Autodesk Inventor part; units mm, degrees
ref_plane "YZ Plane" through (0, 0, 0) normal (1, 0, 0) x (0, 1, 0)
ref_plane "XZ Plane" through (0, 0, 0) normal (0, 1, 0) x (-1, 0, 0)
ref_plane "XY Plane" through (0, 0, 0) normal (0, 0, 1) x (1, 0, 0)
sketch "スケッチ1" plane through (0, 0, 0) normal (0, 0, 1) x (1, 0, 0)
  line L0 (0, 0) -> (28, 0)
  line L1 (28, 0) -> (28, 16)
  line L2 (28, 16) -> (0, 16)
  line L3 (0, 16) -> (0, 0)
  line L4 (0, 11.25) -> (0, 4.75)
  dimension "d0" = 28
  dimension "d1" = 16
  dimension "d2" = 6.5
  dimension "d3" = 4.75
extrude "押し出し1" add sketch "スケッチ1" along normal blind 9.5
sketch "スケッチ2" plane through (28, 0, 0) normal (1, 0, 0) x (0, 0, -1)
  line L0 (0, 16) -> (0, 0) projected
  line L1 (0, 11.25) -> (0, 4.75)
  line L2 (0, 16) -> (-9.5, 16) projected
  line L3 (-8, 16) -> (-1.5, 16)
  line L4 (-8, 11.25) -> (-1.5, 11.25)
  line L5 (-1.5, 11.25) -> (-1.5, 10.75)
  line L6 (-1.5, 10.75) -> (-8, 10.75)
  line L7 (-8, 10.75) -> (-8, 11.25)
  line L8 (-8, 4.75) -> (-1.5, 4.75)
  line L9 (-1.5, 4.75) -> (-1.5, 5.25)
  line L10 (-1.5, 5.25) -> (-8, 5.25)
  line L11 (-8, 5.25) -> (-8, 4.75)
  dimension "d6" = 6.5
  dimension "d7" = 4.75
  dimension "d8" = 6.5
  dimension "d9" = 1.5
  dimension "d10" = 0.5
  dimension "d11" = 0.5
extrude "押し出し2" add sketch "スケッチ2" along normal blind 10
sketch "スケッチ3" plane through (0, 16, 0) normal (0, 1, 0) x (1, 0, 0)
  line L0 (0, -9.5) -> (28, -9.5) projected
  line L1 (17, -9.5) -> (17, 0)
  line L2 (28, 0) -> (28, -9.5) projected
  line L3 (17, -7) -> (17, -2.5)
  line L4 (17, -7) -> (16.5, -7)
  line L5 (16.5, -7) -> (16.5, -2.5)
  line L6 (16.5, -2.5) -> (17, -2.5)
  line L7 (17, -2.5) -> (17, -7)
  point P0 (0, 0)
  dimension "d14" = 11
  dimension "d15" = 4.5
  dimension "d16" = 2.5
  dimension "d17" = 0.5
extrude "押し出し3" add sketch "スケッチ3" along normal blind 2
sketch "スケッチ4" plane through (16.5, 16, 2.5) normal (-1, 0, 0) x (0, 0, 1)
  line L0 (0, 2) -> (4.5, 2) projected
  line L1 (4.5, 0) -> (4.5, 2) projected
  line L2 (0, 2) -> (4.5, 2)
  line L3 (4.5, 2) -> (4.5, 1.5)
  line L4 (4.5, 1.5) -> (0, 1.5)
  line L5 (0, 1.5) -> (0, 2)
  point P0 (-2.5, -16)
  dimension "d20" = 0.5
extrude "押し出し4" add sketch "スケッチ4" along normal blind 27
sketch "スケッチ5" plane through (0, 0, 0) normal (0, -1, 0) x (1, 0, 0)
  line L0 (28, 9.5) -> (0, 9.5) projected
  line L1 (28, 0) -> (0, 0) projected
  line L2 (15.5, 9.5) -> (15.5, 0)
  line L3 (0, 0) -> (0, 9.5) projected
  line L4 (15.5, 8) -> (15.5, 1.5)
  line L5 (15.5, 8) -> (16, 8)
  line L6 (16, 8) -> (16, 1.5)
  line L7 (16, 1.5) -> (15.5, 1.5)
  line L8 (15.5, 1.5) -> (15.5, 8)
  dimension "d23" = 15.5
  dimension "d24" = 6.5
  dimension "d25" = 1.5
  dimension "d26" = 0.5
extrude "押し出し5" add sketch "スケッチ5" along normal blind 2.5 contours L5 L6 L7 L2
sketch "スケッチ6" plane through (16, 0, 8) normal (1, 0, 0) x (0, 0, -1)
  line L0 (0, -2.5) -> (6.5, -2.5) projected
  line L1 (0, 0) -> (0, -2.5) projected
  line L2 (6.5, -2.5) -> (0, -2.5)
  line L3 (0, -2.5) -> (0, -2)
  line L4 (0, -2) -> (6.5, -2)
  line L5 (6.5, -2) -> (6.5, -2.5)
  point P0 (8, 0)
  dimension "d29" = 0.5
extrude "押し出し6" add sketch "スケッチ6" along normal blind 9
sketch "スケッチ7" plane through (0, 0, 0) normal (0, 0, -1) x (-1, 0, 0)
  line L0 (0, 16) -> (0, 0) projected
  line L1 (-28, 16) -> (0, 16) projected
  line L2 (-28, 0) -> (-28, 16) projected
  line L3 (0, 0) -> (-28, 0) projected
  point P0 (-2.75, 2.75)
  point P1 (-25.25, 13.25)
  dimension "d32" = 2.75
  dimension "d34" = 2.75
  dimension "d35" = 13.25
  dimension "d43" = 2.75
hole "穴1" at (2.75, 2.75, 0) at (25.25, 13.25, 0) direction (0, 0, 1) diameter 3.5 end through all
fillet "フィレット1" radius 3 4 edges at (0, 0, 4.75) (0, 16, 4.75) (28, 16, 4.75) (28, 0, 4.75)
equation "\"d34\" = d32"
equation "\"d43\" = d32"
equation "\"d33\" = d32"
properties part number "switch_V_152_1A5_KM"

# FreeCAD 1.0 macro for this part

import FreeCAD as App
import Part
import Sketcher
from FreeCAD import Vector


def edges_at(feature, points):
    """Names of the edges that pass closest to the given points."""
    edges = feature.Shape.Edges
    near = lambda p: min(range(len(edges)), key=lambda i: edges[i].distToShape(Part.Vertex(*p))[0])
    return sorted({f"Edge{near(p) + 1}" for p in points})

doc = App.newDocument("Part")
body = doc.addObject("PartDesign::Body", "Body")

# Sketch on XY plane
sketch1 = body.newObject("Sketcher::SketchObject", "Sketch")
sketch1.AttachmentSupport = (doc.getObject("XY_Plane"), [""])
sketch1.MapMode = "FlatFace"
sketch1.addGeometry([
    Part.LineSegment(Vector(0, 16, 0), Vector(0, 0, 0)),
    Part.LineSegment(Vector(0, 0, 0), Vector(28, 0, 0)),
    Part.LineSegment(Vector(28, 0, 0), Vector(28, 16, 0)),
    Part.LineSegment(Vector(28, 16, 0), Vector(0, 16, 0)),
], False)
sketch1.addConstraint([
    Sketcher.Constraint("Coincident", 0, 2, 1, 1),
    Sketcher.Constraint("Coincident", 1, 2, 2, 1),
    Sketcher.Constraint("Coincident", 2, 2, 3, 1),
    Sketcher.Constraint("Coincident", 3, 2, 0, 1),
    Sketcher.Constraint("Vertical", 0),
    Sketcher.Constraint("Horizontal", 1),
    Sketcher.Constraint("Vertical", 2),
    Sketcher.Constraint("Horizontal", 3),
    Sketcher.Constraint("Coincident", 0, 2, -1, 1),
    Sketcher.Constraint("DistanceX", 1, 1, 1, 2, 28.0),
    Sketcher.Constraint("DistanceY", 0, 2, 0, 1, 16.0),
])
pad1 = body.newObject("PartDesign::Pad", "Pad")
pad1.Profile = sketch1
pad1.Length = 9.5

# Sketch on YZ plane
sketch2 = body.newObject("Sketcher::SketchObject", "Sketch001")
sketch2.AttachmentSupport = (doc.getObject("YZ_Plane"), [""])
sketch2.MapMode = "FlatFace"
sketch2.AttachmentOffset = App.Placement(Vector(0, 0, 28), App.Rotation())
sketch2.addGeometry([
    Part.LineSegment(Vector(11.25, 1.5, 0), Vector(11.25, 8, 0)),  # 0
    Part.LineSegment(Vector(11.25, 8, 0), Vector(10.75, 8, 0)),  # 1
    Part.LineSegment(Vector(10.75, 8, 0), Vector(10.75, 1.5, 0)),  # 2
    Part.LineSegment(Vector(10.75, 1.5, 0), Vector(11.25, 1.5, 0)),  # 3
    Part.LineSegment(Vector(5.25, 8, 0), Vector(4.75, 8, 0)),  # 4
    Part.LineSegment(Vector(4.75, 8, 0), Vector(4.75, 1.5, 0)),  # 5
    Part.LineSegment(Vector(4.75, 1.5, 0), Vector(5.25, 1.5, 0)),  # 6
    Part.LineSegment(Vector(5.25, 1.5, 0), Vector(5.25, 8, 0)),  # 7
], False)
sketch2.addConstraint([
    Sketcher.Constraint("Coincident", 0, 2, 1, 1),
    Sketcher.Constraint("Coincident", 1, 2, 2, 1),
    Sketcher.Constraint("Coincident", 2, 2, 3, 1),
    Sketcher.Constraint("Coincident", 3, 2, 0, 1),
    Sketcher.Constraint("Coincident", 4, 2, 5, 1),
    Sketcher.Constraint("Coincident", 5, 2, 6, 1),
    Sketcher.Constraint("Coincident", 6, 2, 7, 1),
    Sketcher.Constraint("Coincident", 7, 2, 4, 1),
    Sketcher.Constraint("Vertical", 0),
    Sketcher.Constraint("Horizontal", 1),
    Sketcher.Constraint("Vertical", 2),
    Sketcher.Constraint("Horizontal", 3),
    Sketcher.Constraint("Horizontal", 4),
    Sketcher.Constraint("Vertical", 5),
    Sketcher.Constraint("Horizontal", 6),
    Sketcher.Constraint("Vertical", 7),
    Sketcher.Constraint("Horizontal", 1, 2, 4, 2),
    Sketcher.Constraint("Horizontal", 3, 2, 5, 2),
    Sketcher.Constraint("Equal", 3, 4),
    Sketcher.Constraint("DistanceX", 1, 2, 1, 1, 0.5),
    Sketcher.Constraint("DistanceY", 0, 1, 0, 2, 6.5),
    Sketcher.Constraint("DistanceY", -1, 1, 2, 2, 1.5),
    Sketcher.Constraint("DistanceX", 4, 2, 0, 2, 6.5),
    Sketcher.Constraint("DistanceX", -1, 1, 4, 2, 4.75),
])
pad2 = body.newObject("PartDesign::Pad", "Pad001")
pad2.Profile = sketch2
pad2.Length = 10

# Sketch on XZ plane
sketch3 = body.newObject("Sketcher::SketchObject", "Sketch002")
sketch3.AttachmentSupport = (doc.getObject("XZ_Plane"), [""])
sketch3.MapMode = "FlatFace"
sketch3.AttachmentOffset = App.Placement(Vector(0, 0, -16), App.Rotation())
sketch3.addGeometry([
    Part.LineSegment(Vector(16.5, 7, 0), Vector(17, 7, 0)),
    Part.LineSegment(Vector(17, 7, 0), Vector(17, 2.5, 0)),
    Part.LineSegment(Vector(17, 2.5, 0), Vector(16.5, 2.5, 0)),
    Part.LineSegment(Vector(16.5, 2.5, 0), Vector(16.5, 7, 0)),
], False)
sketch3.addConstraint([
    Sketcher.Constraint("Coincident", 0, 2, 1, 1),
    Sketcher.Constraint("Coincident", 1, 2, 2, 1),
    Sketcher.Constraint("Coincident", 2, 2, 3, 1),
    Sketcher.Constraint("Coincident", 3, 2, 0, 1),
    Sketcher.Constraint("Horizontal", 0),
    Sketcher.Constraint("Vertical", 1),
    Sketcher.Constraint("Horizontal", 2),
    Sketcher.Constraint("Vertical", 3),
    Sketcher.Constraint("DistanceX", 0, 1, 0, 2, 0.5),
    Sketcher.Constraint("DistanceY", 1, 2, 1, 1, 4.5),
    Sketcher.Constraint("DistanceY", -1, 1, 1, 2, 2.5),
    Sketcher.Constraint("DistanceX", -1, 1, 0, 2, 17.0),
])
pad3 = body.newObject("PartDesign::Pad", "Pad002")
pad3.Profile = sketch3
pad3.Length = 2
pad3.Reversed = True

# Sketch on YZ plane
sketch4 = body.newObject("Sketcher::SketchObject", "Sketch003")
sketch4.AttachmentSupport = (doc.getObject("YZ_Plane"), [""])
sketch4.MapMode = "FlatFace"
sketch4.AttachmentOffset = App.Placement(Vector(0, 0, 16.5), App.Rotation())
sketch4.addGeometry([
    Part.LineSegment(Vector(18, 7, 0), Vector(18, 2.5, 0)),
    Part.LineSegment(Vector(18, 2.5, 0), Vector(17.5, 2.5, 0)),
    Part.LineSegment(Vector(17.5, 2.5, 0), Vector(17.5, 7, 0)),
    Part.LineSegment(Vector(17.5, 7, 0), Vector(18, 7, 0)),
], False)
sketch4.addConstraint([
    Sketcher.Constraint("Coincident", 0, 2, 1, 1),
    Sketcher.Constraint("Coincident", 1, 2, 2, 1),
    Sketcher.Constraint("Coincident", 2, 2, 3, 1),
    Sketcher.Constraint("Coincident", 3, 2, 0, 1),
    Sketcher.Constraint("Vertical", 0),
    Sketcher.Constraint("Horizontal", 1),
    Sketcher.Constraint("Vertical", 2),
    Sketcher.Constraint("Horizontal", 3),
    Sketcher.Constraint("DistanceX", 1, 2, 1, 1, 0.5),
    Sketcher.Constraint("DistanceY", 0, 2, 0, 1, 4.5),
    Sketcher.Constraint("DistanceX", -1, 1, 0, 2, 18.0),
    Sketcher.Constraint("DistanceY", -1, 1, 2, 2, 7.0),
])
pad4 = body.newObject("PartDesign::Pad", "Pad003")
pad4.Profile = sketch4
pad4.Length = 27
pad4.Reversed = True

# Sketch on XZ plane
sketch5 = body.newObject("Sketcher::SketchObject", "Sketch004")
sketch5.AttachmentSupport = (doc.getObject("XZ_Plane"), [""])
sketch5.MapMode = "FlatFace"
sketch5.addGeometry([
    Part.LineSegment(Vector(16, 8, 0), Vector(15.5, 8, 0)),
    Part.LineSegment(Vector(15.5, 8, 0), Vector(15.5, 1.5, 0)),
    Part.LineSegment(Vector(15.5, 1.5, 0), Vector(16, 1.5, 0)),
    Part.LineSegment(Vector(16, 1.5, 0), Vector(16, 8, 0)),
], False)
sketch5.addConstraint([
    Sketcher.Constraint("Coincident", 0, 2, 1, 1),
    Sketcher.Constraint("Coincident", 1, 2, 2, 1),
    Sketcher.Constraint("Coincident", 2, 2, 3, 1),
    Sketcher.Constraint("Coincident", 3, 2, 0, 1),
    Sketcher.Constraint("Horizontal", 0),
    Sketcher.Constraint("Vertical", 1),
    Sketcher.Constraint("Horizontal", 2),
    Sketcher.Constraint("Vertical", 3),
    Sketcher.Constraint("DistanceX", 0, 2, 0, 1, 0.5),
    Sketcher.Constraint("DistanceY", 1, 2, 1, 1, 6.5),
    Sketcher.Constraint("DistanceX", -1, 1, 0, 2, 15.5),
    Sketcher.Constraint("DistanceY", -1, 1, 1, 2, 1.5),
])
pad5 = body.newObject("PartDesign::Pad", "Pad004")
pad5.Profile = sketch5
pad5.Length = 2.5

# Sketch on YZ plane
sketch6 = body.newObject("Sketcher::SketchObject", "Sketch005")
sketch6.AttachmentSupport = (doc.getObject("YZ_Plane"), [""])
sketch6.MapMode = "FlatFace"
sketch6.AttachmentOffset = App.Placement(Vector(0, 0, 16), App.Rotation())
sketch6.addGeometry([
    Part.LineSegment(Vector(-2, 8, 0), Vector(-2.5, 8, 0)),
    Part.LineSegment(Vector(-2.5, 8, 0), Vector(-2.5, 1.5, 0)),
    Part.LineSegment(Vector(-2.5, 1.5, 0), Vector(-2, 1.5, 0)),
    Part.LineSegment(Vector(-2, 1.5, 0), Vector(-2, 8, 0)),
], False)
sketch6.addConstraint([
    Sketcher.Constraint("Coincident", 0, 2, 1, 1),
    Sketcher.Constraint("Coincident", 1, 2, 2, 1),
    Sketcher.Constraint("Coincident", 2, 2, 3, 1),
    Sketcher.Constraint("Coincident", 3, 2, 0, 1),
    Sketcher.Constraint("Horizontal", 0),
    Sketcher.Constraint("Vertical", 1),
    Sketcher.Constraint("Horizontal", 2),
    Sketcher.Constraint("Vertical", 3),
    Sketcher.Constraint("DistanceX", 0, 2, 0, 1, 0.5),
    Sketcher.Constraint("DistanceY", 1, 2, 1, 1, 6.5),
    Sketcher.Constraint("DistanceY", -1, 1, 0, 2, 8.0),
    Sketcher.Constraint("DistanceX", 2, 2, -1, 1, 2.0),
])
pad6 = body.newObject("PartDesign::Pad", "Pad005")
pad6.Profile = sketch6
pad6.Length = 9

# Sketch on XY plane
sketch7 = body.newObject("Sketcher::SketchObject", "Sketch006")
sketch7.AttachmentSupport = (doc.getObject("XY_Plane"), [""])
sketch7.MapMode = "FlatFace"
sketch7.addGeometry([
    Part.Circle(Vector(2.75, 2.75, 0), Vector(0, 0, 1), 1.75),
    Part.Circle(Vector(25.25, 13.25, 0), Vector(0, 0, 1), 1.75),
], False)
sketch7.addConstraint([
    Sketcher.Constraint("Equal", 0, 1),
    Sketcher.Constraint("Diameter", 0, 3.5),
    Sketcher.Constraint("DistanceX", 0, 3, 1, 3, 22.5),
    Sketcher.Constraint("DistanceY", 0, 3, 1, 3, 10.5),
    Sketcher.Constraint("DistanceX", -1, 1, 0, 3, 2.75),
    Sketcher.Constraint("DistanceY", -1, 1, 0, 3, 2.75),
])
doc.recompute()
hole = body.newObject("PartDesign::Hole", "Hole")
hole.Profile = sketch7
hole.ThreadType = "None"
hole.Diameter = 3.5
hole.DepthType = "ThroughAll"
hole.Reversed = True
doc.recompute()

fillet = body.newObject("PartDesign::Fillet", "Fillet")
fillet.Base = (hole, edges_at(hole, [
    (0, 0, 4.75),
    (0, 16, 4.75),
    (28, 16, 4.75),
    (28, 0, 4.75),
]))
fillet.Radius = 3

doc.recompute()
